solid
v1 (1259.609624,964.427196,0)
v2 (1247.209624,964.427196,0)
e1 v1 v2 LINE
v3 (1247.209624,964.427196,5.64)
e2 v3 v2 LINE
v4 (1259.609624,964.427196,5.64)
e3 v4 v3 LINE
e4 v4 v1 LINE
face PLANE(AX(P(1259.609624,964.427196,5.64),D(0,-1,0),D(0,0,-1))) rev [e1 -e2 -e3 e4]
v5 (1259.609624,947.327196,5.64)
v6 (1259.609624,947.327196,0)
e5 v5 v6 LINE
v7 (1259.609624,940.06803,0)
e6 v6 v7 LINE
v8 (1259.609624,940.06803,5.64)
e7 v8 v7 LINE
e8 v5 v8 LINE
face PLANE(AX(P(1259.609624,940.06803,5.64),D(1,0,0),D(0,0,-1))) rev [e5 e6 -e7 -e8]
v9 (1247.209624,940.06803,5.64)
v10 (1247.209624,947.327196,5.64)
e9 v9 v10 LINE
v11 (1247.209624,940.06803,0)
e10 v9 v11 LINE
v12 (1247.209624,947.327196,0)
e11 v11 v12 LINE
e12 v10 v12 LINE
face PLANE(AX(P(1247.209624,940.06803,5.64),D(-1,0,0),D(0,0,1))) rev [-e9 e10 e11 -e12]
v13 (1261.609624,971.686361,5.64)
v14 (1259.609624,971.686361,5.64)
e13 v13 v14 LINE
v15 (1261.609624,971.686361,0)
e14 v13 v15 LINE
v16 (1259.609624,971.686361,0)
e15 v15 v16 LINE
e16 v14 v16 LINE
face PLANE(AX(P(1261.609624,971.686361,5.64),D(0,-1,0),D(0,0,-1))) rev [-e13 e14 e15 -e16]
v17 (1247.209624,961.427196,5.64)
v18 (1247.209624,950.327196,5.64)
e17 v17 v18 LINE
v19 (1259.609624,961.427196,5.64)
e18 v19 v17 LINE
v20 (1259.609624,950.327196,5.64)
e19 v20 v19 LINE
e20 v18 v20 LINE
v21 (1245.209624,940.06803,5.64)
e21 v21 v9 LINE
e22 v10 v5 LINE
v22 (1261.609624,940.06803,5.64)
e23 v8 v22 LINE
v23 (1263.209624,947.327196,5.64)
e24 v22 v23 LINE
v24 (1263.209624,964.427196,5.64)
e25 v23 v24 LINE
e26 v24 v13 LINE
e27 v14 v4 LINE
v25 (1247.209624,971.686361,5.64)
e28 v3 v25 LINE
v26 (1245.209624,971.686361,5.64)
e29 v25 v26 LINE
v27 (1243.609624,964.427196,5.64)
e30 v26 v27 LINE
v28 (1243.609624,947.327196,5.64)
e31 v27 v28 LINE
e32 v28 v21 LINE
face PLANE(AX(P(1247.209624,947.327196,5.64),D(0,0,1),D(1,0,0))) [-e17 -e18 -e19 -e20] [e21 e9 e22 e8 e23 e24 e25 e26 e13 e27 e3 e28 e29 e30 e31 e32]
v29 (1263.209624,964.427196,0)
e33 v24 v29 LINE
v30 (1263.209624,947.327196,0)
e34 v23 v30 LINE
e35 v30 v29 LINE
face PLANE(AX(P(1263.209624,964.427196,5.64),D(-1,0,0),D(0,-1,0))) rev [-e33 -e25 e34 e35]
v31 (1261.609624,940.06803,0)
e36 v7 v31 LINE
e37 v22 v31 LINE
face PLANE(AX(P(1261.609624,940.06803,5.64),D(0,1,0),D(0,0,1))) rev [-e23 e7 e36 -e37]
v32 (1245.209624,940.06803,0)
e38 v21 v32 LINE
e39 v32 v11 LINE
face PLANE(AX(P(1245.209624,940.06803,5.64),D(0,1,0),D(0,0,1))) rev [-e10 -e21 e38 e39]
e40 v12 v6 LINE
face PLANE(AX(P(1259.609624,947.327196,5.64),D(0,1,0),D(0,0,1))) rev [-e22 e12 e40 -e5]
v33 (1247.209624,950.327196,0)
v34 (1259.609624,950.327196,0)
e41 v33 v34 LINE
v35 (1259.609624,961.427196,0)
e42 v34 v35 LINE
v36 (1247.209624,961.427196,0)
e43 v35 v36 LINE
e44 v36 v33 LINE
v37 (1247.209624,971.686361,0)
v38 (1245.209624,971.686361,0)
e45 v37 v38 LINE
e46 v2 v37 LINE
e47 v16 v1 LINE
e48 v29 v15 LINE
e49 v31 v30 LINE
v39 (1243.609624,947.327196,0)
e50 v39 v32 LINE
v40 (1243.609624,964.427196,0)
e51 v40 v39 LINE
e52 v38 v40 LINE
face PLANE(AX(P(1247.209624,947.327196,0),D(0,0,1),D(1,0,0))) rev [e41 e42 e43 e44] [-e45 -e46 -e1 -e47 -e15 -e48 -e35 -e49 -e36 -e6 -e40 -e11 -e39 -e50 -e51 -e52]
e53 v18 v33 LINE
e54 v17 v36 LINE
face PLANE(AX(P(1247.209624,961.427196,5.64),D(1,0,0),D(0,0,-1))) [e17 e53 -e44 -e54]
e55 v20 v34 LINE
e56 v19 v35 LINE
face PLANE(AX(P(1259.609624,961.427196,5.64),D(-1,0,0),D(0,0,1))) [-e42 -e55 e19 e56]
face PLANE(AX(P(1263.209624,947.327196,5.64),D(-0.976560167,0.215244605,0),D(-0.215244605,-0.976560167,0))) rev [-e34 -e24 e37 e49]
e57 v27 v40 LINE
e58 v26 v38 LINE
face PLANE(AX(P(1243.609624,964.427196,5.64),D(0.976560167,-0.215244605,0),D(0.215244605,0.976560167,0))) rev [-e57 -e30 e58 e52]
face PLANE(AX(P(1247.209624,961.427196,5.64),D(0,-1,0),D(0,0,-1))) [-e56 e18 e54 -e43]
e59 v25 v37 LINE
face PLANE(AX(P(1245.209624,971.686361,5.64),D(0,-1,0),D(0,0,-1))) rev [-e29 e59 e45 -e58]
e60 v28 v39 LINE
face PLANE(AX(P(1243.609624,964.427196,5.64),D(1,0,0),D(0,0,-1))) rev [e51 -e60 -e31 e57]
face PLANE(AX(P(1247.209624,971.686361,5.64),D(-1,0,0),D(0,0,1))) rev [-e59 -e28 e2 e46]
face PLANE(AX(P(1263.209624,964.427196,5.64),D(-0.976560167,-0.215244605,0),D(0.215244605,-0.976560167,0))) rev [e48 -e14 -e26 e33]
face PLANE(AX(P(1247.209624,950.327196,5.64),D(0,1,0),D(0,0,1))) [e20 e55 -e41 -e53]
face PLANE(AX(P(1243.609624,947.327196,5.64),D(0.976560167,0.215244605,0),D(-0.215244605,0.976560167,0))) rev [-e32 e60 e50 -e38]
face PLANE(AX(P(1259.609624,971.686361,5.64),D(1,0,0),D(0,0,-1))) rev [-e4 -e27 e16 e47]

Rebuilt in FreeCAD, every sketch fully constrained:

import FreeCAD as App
import Part
import Sketcher

V = App.Vector
Q = App.Units.Quantity

doc = App.newDocument("Part")
params = doc.addObject("Spreadsheet::Sheet", "Params")
for row, (alias, value) in enumerate([
    ("sketch1_width", "2 mm"),
    ("sketch1_width2", "12.4 mm"),
    ("sketch1_height", "17.1 mm"),
    ("sketch1_height2", "11.1 mm"),
    ("pad1_length", "5.64 mm"),
], start=1):
    params.set(f"A{row}", alias)
    params.set(f"B{row}", "=" + value)
    params.setAlias(f"B{row}", alias)

body = doc.addObject("PartDesign::Body", "Body")

sketch1 = body.newObject("Sketcher::SketchObject", "Sketch")
sketch1.AttachmentSupport = (doc.getObject("XY_Plane"), [""])
sketch1.MapMode = "FlatFace"
sketch1.addGeometry([
    Part.LineSegment(V(1247.2, 971.7, 0), V(1245.2, 971.7, 0)),
    Part.LineSegment(V(1245.2, 971.7, 0), V(1243.6, 964.4, 0)),
    Part.LineSegment(V(1243.6, 964.4, 0), V(1243.6, 947.3, 0)),
    Part.LineSegment(V(1243.6, 947.3, 0), V(1245.2, 940.1, 0)),
    Part.LineSegment(V(1245.2, 940.1, 0), V(1247.2, 940.1, 0)),
    Part.LineSegment(V(1247.2, 940.1, 0), V(1247.2, 947.3, 0)),
    Part.LineSegment(V(1247.2, 947.3, 0), V(1259.6, 947.3, 0)),
    Part.LineSegment(V(1259.6, 947.3, 0), V(1259.6, 940.1, 0)),
    Part.LineSegment(V(1259.6, 940.1, 0), V(1261.6, 940.1, 0)),
    Part.LineSegment(V(1261.6, 940.1, 0), V(1263.2, 947.3, 0)),
    Part.LineSegment(V(1263.2, 947.3, 0), V(1263.2, 964.4, 0)),
    Part.LineSegment(V(1263.2, 964.4, 0), V(1261.6, 971.7, 0)),
    Part.LineSegment(V(1261.6, 971.7, 0), V(1259.6, 971.7, 0)),
    Part.LineSegment(V(1259.6, 971.7, 0), V(1259.6, 964.4, 0)),
    Part.LineSegment(V(1259.6, 964.4, 0), V(1247.2, 964.4, 0)),
    Part.LineSegment(V(1247.2, 964.4, 0), V(1247.2, 971.7, 0)),
    Part.LineSegment(V(1247.2, 950.3, 0), V(1247.2, 961.4, 0)),
    Part.LineSegment(V(1247.2, 961.4, 0), V(1259.6, 961.4, 0)),
    Part.LineSegment(V(1259.6, 961.4, 0), V(1259.6, 950.3, 0)),
    Part.LineSegment(V(1259.6, 950.3, 0), V(1247.2, 950.3, 0)),
], False)
sketch1.addConstraint([
    Sketcher.Constraint("Coincident", 0, 2, 1, 1),
    Sketcher.Constraint("Coincident", 1, 2, 2, 1),
    Sketcher.Constraint("Coincident", 2, 2, 3, 1),
    Sketcher.Constraint("Coincident", 3, 2, 4, 1),
    Sketcher.Constraint("Coincident", 4, 2, 5, 1),
    Sketcher.Constraint("Coincident", 5, 2, 6, 1),
    Sketcher.Constraint("Coincident", 6, 2, 7, 1),
    Sketcher.Constraint("Coincident", 7, 2, 8, 1),
    Sketcher.Constraint("Coincident", 8, 2, 9, 1),
    Sketcher.Constraint("Coincident", 9, 2, 10, 1),
    Sketcher.Constraint("Coincident", 10, 2, 11, 1),
    Sketcher.Constraint("Coincident", 11, 2, 12, 1),
    Sketcher.Constraint("Coincident", 12, 2, 13, 1),
    Sketcher.Constraint("Coincident", 13, 2, 14, 1),
    Sketcher.Constraint("Coincident", 14, 2, 15, 1),
    Sketcher.Constraint("Coincident", 15, 2, 0, 1),
    Sketcher.Constraint("Coincident", 16, 2, 17, 1),
    Sketcher.Constraint("Coincident", 17, 2, 18, 1),
    Sketcher.Constraint("Coincident", 18, 2, 19, 1),
    Sketcher.Constraint("Coincident", 19, 2, 16, 1),
    Sketcher.Constraint("Horizontal", 0),
    Sketcher.Constraint("Vertical", 2),
    Sketcher.Constraint("Horizontal", 4),
    Sketcher.Constraint("Vertical", 5),
    Sketcher.Constraint("Horizontal", 6),
    Sketcher.Constraint("Vertical", 7),
    Sketcher.Constraint("Horizontal", 8),
    Sketcher.Constraint("Vertical", 10),
    Sketcher.Constraint("Horizontal", 12),
    Sketcher.Constraint("Vertical", 13),
    Sketcher.Constraint("Horizontal", 14),
    Sketcher.Constraint("Vertical", 15),
    Sketcher.Constraint("Vertical", 16),
    Sketcher.Constraint("Horizontal", 17),
    Sketcher.Constraint("Vertical", 18),
    Sketcher.Constraint("Horizontal", 19),
    Sketcher.Constraint("Parallel", 1, 9),
    Sketcher.Constraint("Parallel", 3, 11),
    Sketcher.Constraint("Horizontal", 2, 2, 5, 2),
    Sketcher.Constraint("Horizontal", 4, 2, 7, 2),
    Sketcher.Constraint("Horizontal", 6, 2, 9, 2),
    Sketcher.Constraint("Horizontal", 1, 2, 10, 2),
    Sketcher.Constraint("Horizontal", 0, 2, 11, 2),
    Sketcher.Constraint("Horizontal", 10, 2, 13, 2),
    Sketcher.Constraint("Vertical", 0, 2, 3, 2),
    Sketcher.Constraint("Vertical", 8, 2, 11, 2),
    Sketcher.Constraint("Vertical", 7, 2, 12, 2),
    Sketcher.Constraint("Vertical", 5, 2, 14, 2),
    Sketcher.Constraint("Vertical", 15, 2, 16, 2),
    Sketcher.Constraint("Vertical", 13, 2, 17, 2),
    Sketcher.Constraint("Equal", 4, 8),
    Sketcher.Constraint("DistanceX", 0, 2, 0, 1, Q("2 mm")),
    Sketcher.Constraint("DistanceX", 6, 1, 6, 2, Q("12.4 mm")),
    Sketcher.Constraint("DistanceY", 2, 2, 2, 1, Q("17.1 mm")),
    Sketcher.Constraint("DistanceY", 16, 1, 16, 2, Q("11.1 mm")),
    Sketcher.Constraint("DistanceX", 2, 2, 6, 2, Q("16 mm")),
    Sketcher.Constraint("DistanceY", 16, 2, 14, 2, Q("3 mm")),
    Sketcher.Constraint("DistanceY", 5, 1, 5, 2, Q("7.259166 mm")),
    Sketcher.Constraint("DistanceY", -1, 1, 0, 2, Q("971.686361 mm")),
    Sketcher.Constraint("DistanceX", -1, 1, 0, 2, Q("1245.209624 mm")),
])
sketch1.setExpression("Constraints[51]", "Params.sketch1_width")
sketch1.setExpression("Constraints[52]", "Params.sketch1_width2")
sketch1.setExpression("Constraints[53]", "Params.sketch1_height")
sketch1.setExpression("Constraints[54]", "Params.sketch1_height2")
pad1 = body.newObject("PartDesign::Pad", "Pad")
pad1.Profile = sketch1
pad1.setExpression("Length", "Params.pad1_length")

doc.recompute()
